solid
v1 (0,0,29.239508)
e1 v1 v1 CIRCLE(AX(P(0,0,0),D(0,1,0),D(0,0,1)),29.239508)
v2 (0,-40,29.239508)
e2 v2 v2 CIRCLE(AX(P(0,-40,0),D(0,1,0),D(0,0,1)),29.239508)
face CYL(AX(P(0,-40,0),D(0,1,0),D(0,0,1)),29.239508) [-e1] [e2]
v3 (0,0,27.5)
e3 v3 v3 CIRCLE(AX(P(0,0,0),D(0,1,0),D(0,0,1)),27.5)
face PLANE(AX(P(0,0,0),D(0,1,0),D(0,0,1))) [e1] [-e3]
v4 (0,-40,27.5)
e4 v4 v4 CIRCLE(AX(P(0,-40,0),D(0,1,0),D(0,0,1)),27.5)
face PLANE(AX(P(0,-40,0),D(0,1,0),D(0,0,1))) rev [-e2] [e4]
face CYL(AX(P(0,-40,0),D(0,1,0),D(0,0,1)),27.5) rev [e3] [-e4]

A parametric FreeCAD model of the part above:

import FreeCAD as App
import Part
import Sketcher

V = App.Vector

doc = App.newDocument("Part")
body = doc.addObject("PartDesign::Body", "Body")

sketch1 = body.newObject("Sketcher::SketchObject", "Sketch")
sketch1.AttachmentSupport = (doc.getObject("XZ_Plane"), [""])
sketch1.MapMode = "FlatFace"
sketch1.addGeometry([
    Part.Circle(V(0, 0, 0), V(0, 0, 1), 29.239508),
    Part.Circle(V(0, 0, 0), V(0, 0, 1), 27.5),
], False)
sketch1.addConstraint([
    Sketcher.Constraint("Coincident", 0, 3, -1, 1),
    Sketcher.Constraint("Coincident", 1, 3, -1, 1),
    Sketcher.Constraint("Diameter", 1, 55.0),
    Sketcher.Constraint("Diameter", 0, 58.479016),
])
pad1 = body.newObject("PartDesign::Pad", "Pad")
pad1.Profile = sketch1
pad1.Length = 40

doc.recompute()
